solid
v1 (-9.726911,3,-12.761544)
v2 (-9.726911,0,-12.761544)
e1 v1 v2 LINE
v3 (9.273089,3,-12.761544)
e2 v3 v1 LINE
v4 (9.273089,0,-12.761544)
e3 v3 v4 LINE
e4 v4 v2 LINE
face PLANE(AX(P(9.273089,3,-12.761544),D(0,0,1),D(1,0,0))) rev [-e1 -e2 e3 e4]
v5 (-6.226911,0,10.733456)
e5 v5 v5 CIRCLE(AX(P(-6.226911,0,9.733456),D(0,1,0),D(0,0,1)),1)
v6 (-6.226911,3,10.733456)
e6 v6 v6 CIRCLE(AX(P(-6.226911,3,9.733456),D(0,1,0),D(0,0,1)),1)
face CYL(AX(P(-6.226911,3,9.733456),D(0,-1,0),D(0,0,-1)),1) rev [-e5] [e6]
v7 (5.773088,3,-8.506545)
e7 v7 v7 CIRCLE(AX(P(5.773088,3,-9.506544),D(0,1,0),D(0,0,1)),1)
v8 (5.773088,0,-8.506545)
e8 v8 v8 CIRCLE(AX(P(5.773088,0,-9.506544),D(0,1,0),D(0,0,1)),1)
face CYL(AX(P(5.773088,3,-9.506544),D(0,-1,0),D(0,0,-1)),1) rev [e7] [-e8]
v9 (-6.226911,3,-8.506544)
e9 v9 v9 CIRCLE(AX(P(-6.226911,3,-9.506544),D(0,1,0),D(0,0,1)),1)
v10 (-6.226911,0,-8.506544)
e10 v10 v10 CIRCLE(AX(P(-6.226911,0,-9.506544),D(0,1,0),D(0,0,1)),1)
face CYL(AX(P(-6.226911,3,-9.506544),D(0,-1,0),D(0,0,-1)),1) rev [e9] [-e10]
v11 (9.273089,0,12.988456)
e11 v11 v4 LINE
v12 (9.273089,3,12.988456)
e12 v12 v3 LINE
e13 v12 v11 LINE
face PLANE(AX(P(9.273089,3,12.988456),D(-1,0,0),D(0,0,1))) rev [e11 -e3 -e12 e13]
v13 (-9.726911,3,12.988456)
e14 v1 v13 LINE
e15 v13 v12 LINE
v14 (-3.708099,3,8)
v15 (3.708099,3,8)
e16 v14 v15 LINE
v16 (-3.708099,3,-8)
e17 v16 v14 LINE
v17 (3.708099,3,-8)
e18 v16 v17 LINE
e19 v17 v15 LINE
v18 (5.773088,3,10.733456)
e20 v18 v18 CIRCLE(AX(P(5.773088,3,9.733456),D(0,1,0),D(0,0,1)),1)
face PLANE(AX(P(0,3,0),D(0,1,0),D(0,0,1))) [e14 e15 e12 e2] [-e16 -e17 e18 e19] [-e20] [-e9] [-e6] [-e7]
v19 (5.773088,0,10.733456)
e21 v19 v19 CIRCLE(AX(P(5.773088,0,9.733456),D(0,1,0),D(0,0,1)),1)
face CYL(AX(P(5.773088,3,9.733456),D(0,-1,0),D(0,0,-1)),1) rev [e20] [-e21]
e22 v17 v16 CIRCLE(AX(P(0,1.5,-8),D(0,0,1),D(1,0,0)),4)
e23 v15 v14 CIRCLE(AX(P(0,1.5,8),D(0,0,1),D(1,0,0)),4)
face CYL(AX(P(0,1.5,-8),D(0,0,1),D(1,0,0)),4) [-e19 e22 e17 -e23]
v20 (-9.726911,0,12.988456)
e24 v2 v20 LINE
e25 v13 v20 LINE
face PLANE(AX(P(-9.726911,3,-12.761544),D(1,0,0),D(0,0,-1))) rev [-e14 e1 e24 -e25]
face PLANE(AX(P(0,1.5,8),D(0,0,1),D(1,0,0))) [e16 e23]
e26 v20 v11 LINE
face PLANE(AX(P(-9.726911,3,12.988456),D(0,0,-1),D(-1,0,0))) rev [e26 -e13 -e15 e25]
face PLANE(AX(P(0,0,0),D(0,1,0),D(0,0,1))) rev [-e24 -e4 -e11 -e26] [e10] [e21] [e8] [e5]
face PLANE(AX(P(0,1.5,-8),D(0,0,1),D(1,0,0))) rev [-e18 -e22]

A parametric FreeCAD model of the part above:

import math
import FreeCAD as App
import Part
import Sketcher


def add_polygon(sketch, points):
    """Adds a closed chain of lines whose ends are joined by coincident constraints."""
    first, n = sketch.GeometryCount, len(points)
    for a, b in zip(points, points[1:] + points[:1]):
        sketch.addGeometry(Part.LineSegment(App.Vector(*a, 0), App.Vector(*b, 0)), False)
    for i in range(n):
        sketch.addConstraint(Sketcher.Constraint("Coincident", first + i, 2, first + (i + 1) % n, 1))

doc = App.newDocument("Part")
body = doc.addObject("PartDesign::Body", "Body")

sketch1 = body.newObject("Sketcher::SketchObject", "Sketch")
sketch1.AttachmentSupport = (doc.getObject("XZ_Plane"), [""])
sketch1.MapMode = "FlatFace"
add_polygon(sketch1, [(-9.726911, -12.761544), (-9.726911, 12.988456), (9.273089, 12.988456), (9.273089, -12.761544)])
sketch1.addGeometry(Part.Circle(App.Vector(-6.226911, 9.733456, 0), App.Vector(0, 0, 1), 1), False)
sketch1.addGeometry(Part.Circle(App.Vector(5.773088, 9.733456, 0), App.Vector(0, 0, 1), 1), False)
sketch1.addGeometry(Part.Circle(App.Vector(-6.226911, -9.506544, 0), App.Vector(0, 0, 1), 1), False)
sketch1.addGeometry(Part.Circle(App.Vector(5.773088, -9.506544, 0), App.Vector(0, 0, 1), 1), False)
sketch1.addConstraint(Sketcher.Constraint("Vertical", 0))
sketch1.addConstraint(Sketcher.Constraint("Horizontal", 1))
sketch1.addConstraint(Sketcher.Constraint("Vertical", 2))
sketch1.addConstraint(Sketcher.Constraint("Horizontal", 3))
sketch1.addConstraint(Sketcher.Constraint("Equal", 4, 5))
sketch1.addConstraint(Sketcher.Constraint("Equal", 5, 6))
sketch1.addConstraint(Sketcher.Constraint("Equal", 6, 7))
sketch1.addConstraint(Sketcher.Constraint("Horizontal", 4, 3, 5, 3))
sketch1.addConstraint(Sketcher.Constraint("Horizontal", 6, 3, 7, 3))
sketch1.addConstraint(Sketcher.Constraint("Vertical", 4, 3, 6, 3))
sketch1.addConstraint(Sketcher.Constraint("Vertical", 5, 3, 7, 3))
sketch1.addConstraint(Sketcher.Constraint("Diameter", 4, 2.0))
sketch1.addConstraint(Sketcher.Constraint("DistanceX", 1, 1, 1, 2, 19.0))
sketch1.addConstraint(Sketcher.Constraint("DistanceX", 4, 3, 5, 3, 12.0))
sketch1.addConstraint(Sketcher.Constraint("DistanceY", 0, 1, 0, 2, 25.75))
sketch1.addConstraint(Sketcher.Constraint("DistanceX", 0, 2, 4, 3, 3.5))
sketch1.addConstraint(Sketcher.Constraint("DistanceY", 6, 3, 4, 3, 19.24))
sketch1.addConstraint(Sketcher.Constraint("DistanceY", 4, 3, 0, 2, 3.255))
sketch1.addConstraint(Sketcher.Constraint("DistanceX", 4, 3, -1, 1, 6.226911))
sketch1.addConstraint(Sketcher.Constraint("DistanceY", -1, 1, 4, 3, 9.733456))
pad1 = body.newObject("PartDesign::Pad", "Pad")
pad1.Profile = sketch1
pad1.Length = 3
pad1.Reversed = True

sketch2 = body.newObject("Sketcher::SketchObject", "Sketch001")
sketch2.AttachmentSupport = (doc.getObject("XY_Plane"), [""])
sketch2.MapMode = "FlatFace"
sketch2.addGeometry(Part.LineSegment(App.Vector(-3.708099, 3, 0), App.Vector(3.708099, 3, 0)), False)
sketch2.addGeometry(Part.ArcOfCircle(Part.Circle(App.Vector(0, 1.5, 0), App.Vector(0, 0, 1), 4), math.radians(22.024313), math.radians(157.975687)), False)
sketch2.addConstraint(Sketcher.Constraint("Coincident", 0, 1, 1, 2))
sketch2.addConstraint(Sketcher.Constraint("Coincident", 1, 1, 0, 2))
sketch2.addConstraint(Sketcher.Constraint("Horizontal", 0))
sketch2.addConstraint(Sketcher.Constraint("PointOnObject", 1, 3, -2))
sketch2.addConstraint(Sketcher.Constraint("Radius", 1, 4.0))
sketch2.addConstraint(Sketcher.Constraint("DistanceY", -1, 1, 0, 1, 3.0))
sketch2.addConstraint(Sketcher.Constraint("DistanceY", -1, 1, 1, 3, 1.5))
pad2 = body.newObject("PartDesign::Pad", "Pad001")
pad2.Profile = sketch2
pad2.Type = "TwoLengths"
pad2.Length = 8
pad2.Length2 = 8

doc.recompute()
